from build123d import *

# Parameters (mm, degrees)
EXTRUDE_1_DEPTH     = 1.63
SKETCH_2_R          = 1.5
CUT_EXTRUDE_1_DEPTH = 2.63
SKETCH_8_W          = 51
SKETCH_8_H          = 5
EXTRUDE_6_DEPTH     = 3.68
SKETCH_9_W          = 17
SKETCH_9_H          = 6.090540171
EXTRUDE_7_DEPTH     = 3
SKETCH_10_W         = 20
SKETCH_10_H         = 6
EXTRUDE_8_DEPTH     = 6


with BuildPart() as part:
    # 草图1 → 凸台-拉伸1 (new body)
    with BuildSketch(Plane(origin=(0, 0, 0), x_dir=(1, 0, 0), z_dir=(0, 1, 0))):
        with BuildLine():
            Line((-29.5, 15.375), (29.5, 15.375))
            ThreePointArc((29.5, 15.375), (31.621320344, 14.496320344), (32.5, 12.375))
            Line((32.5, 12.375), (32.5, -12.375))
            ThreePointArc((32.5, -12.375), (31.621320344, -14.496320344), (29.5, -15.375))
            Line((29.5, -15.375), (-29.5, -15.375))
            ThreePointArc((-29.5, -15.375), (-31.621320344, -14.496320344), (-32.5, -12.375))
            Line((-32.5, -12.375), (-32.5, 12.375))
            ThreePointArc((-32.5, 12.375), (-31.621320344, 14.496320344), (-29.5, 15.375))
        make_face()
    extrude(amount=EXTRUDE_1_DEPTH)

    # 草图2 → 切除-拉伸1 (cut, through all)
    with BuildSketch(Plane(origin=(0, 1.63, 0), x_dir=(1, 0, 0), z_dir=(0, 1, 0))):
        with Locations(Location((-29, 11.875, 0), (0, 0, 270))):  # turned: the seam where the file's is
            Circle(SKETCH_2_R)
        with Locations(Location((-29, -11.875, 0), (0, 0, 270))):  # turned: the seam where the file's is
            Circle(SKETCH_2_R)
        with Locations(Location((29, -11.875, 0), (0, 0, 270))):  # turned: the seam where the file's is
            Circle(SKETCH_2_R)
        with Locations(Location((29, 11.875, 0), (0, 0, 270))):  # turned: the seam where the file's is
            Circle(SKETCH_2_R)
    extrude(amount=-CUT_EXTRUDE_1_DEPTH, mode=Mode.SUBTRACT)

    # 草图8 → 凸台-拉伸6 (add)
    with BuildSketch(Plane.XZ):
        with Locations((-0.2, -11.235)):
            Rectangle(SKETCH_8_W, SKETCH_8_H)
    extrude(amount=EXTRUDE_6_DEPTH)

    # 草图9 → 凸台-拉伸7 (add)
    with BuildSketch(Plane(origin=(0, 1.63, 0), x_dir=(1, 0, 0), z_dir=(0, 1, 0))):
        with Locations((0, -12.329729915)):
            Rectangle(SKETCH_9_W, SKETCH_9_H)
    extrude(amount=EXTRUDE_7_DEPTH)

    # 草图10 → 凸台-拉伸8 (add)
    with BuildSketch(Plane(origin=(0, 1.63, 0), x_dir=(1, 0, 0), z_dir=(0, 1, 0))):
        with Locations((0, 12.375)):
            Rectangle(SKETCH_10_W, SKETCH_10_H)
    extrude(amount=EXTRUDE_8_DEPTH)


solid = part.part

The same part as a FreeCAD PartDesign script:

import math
import FreeCAD as App
import Part
import Sketcher
Q = App.Units.Quantity

doc = App.newDocument("Part")
body = doc.addObject("PartDesign::Body", "Body")

# Sketch on XZ plane
sketch1 = body.newObject("Sketcher::SketchObject", "Sketch")
sketch1.AttachmentSupport = (doc.getObject("XZ_Plane"), [""])
sketch1.MapMode = "FlatFace"
sketch1.addGeometry([
    Part.LineSegment(App.Vector(29.5, -15.4, 0), App.Vector(-29.5, -15.4, 0)),  # 0
    Part.ArcOfCircle(Part.Circle(App.Vector(-29.5, -12.4, 0), App.Vector(0, 0, 1), 3), math.radians(180), math.radians(270)),  # 1
    Part.LineSegment(App.Vector(-32.5, -12.4, 0), App.Vector(-32.5, 12.4, 0)),  # 2
    Part.ArcOfCircle(Part.Circle(App.Vector(-29.5, 12.4, 0), App.Vector(0, 0, 1), 3), math.radians(90), math.radians(180)),  # 3
    Part.LineSegment(App.Vector(-29.5, 15.4, 0), App.Vector(29.5, 15.4, 0)),  # 4
    Part.ArcOfCircle(Part.Circle(App.Vector(29.5, 12.4, 0), App.Vector(0, 0, 1), 3), math.radians(0), math.radians(90)),  # 5
    Part.LineSegment(App.Vector(32.5, 12.4, 0), App.Vector(32.5, -12.4, 0)),  # 6
    Part.ArcOfCircle(Part.Circle(App.Vector(29.5, -12.4, 0), App.Vector(0, 0, 1), 3), math.radians(-90), math.radians(0)),  # 7
], False)
sketch1.addConstraint([
    Sketcher.Constraint("Tangent", 0, 2, 1, 2),
    Sketcher.Constraint("Tangent", 1, 1, 2, 1),
    Sketcher.Constraint("Tangent", 2, 2, 3, 2),
    Sketcher.Constraint("Tangent", 3, 1, 4, 1),
    Sketcher.Constraint("Tangent", 4, 2, 5, 2),
    Sketcher.Constraint("Tangent", 5, 1, 6, 1),
    Sketcher.Constraint("Tangent", 6, 2, 7, 2),
    Sketcher.Constraint("Tangent", 7, 1, 0, 1),
    Sketcher.Constraint("Horizontal", 0),
    Sketcher.Constraint("Vertical", 2),
    Sketcher.Constraint("Horizontal", 4),
    Sketcher.Constraint("Vertical", 6),
    Sketcher.Constraint("Equal", 1, 3),
    Sketcher.Constraint("Equal", 3, 5),
    Sketcher.Constraint("Equal", 5, 7),
    Sketcher.Constraint("Symmetric", 1, 3, 5, 3, -1, 1),
    Sketcher.Constraint("Radius", 1, Q("3 mm")),
    Sketcher.Constraint("DistanceX", 0, 2, 0, 1, Q("59 mm")),
    Sketcher.Constraint("DistanceY", 2, 1, 2, 2, Q("24.75 mm")),
])
pad1 = body.newObject("PartDesign::Pad", "Pad")
pad1.Profile = sketch1
pad1.Length = 1.63
pad1.Reversed = True

# Sketch on XZ plane
sketch2 = body.newObject("Sketcher::SketchObject", "Sketch001")
sketch2.AttachmentSupport = (doc.getObject("XZ_Plane"), [""])
sketch2.MapMode = "FlatFace"
sketch2.AttachmentOffset = App.Placement(App.Vector(0, 0, -1.63), App.Rotation())
sketch2.addGeometry([
    Part.Circle(App.Vector(-29, -11.9, 0), App.Vector(0, 0, 1), 1.5),
    Part.Circle(App.Vector(-29, 11.9, 0), App.Vector(0, 0, 1), 1.5),
    Part.Circle(App.Vector(29, 11.9, 0), App.Vector(0, 0, 1), 1.5),
    Part.Circle(App.Vector(29, -11.9, 0), App.Vector(0, 0, 1), 1.5),
], False)
sketch2.addConstraint([
    Sketcher.Constraint("Equal", 0, 1),
    Sketcher.Constraint("Equal", 1, 2),
    Sketcher.Constraint("Equal", 2, 3),
    Sketcher.Constraint("Symmetric", 0, 3, 2, 3, -1, 1),
    Sketcher.Constraint("Symmetric", 1, 3, 3, 3, -1, 1),
    Sketcher.Constraint("Symmetric", 1, 3, 2, 3, -2),
    Sketcher.Constraint("Diameter", 0, Q("3 mm")),
    Sketcher.Constraint("DistanceX", 0, 3, -1, 1, Q("29 mm")),
    Sketcher.Constraint("DistanceY", 0, 3, 1, 3, Q("23.75 mm")),
])
pocket1 = body.newObject("PartDesign::Pocket", "Pocket")
pocket1.Profile = sketch2
pocket1.Type = "ThroughAll"
pocket1.Reversed = True

# Sketch on XZ plane
sketch3 = body.newObject("Sketcher::SketchObject", "Sketch002")
sketch3.AttachmentSupport = (doc.getObject("XZ_Plane"), [""])
sketch3.MapMode = "FlatFace"
sketch3.addGeometry([
    Part.LineSegment(App.Vector(-26, -9, 0), App.Vector(-26, -14, 0)),
    Part.LineSegment(App.Vector(-26, -14, 0), App.Vector(25, -14, 0)),
    Part.LineSegment(App.Vector(25, -14, 0), App.Vector(25, -9, 0)),
    Part.LineSegment(App.Vector(25, -9, 0), App.Vector(-26, -9, 0)),
], False)
sketch3.addConstraint([
    Sketcher.Constraint("Coincident", 0, 2, 1, 1),
    Sketcher.Constraint("Coincident", 1, 2, 2, 1),
    Sketcher.Constraint("Coincident", 2, 2, 3, 1),
    Sketcher.Constraint("Coincident", 3, 2, 0, 1),
    Sketcher.Constraint("Vertical", 0),
    Sketcher.Constraint("Horizontal", 1),
    Sketcher.Constraint("Vertical", 2),
    Sketcher.Constraint("Horizontal", 3),
    Sketcher.Constraint("DistanceX", 1, 1, 1, 2, Q("51 mm")),
    Sketcher.Constraint("DistanceY", 0, 2, 0, 1, Q("5 mm")),
    Sketcher.Constraint("DistanceX", 0, 2, -1, 1, Q("25.7 mm")),
    Sketcher.Constraint("DistanceY", 0, 2, -1, 1, Q("13.735 mm")),
])
pad2 = body.newObject("PartDesign::Pad", "Pad001")
pad2.Profile = sketch3
pad2.Length = 3.68

# Sketch on XZ plane
sketch4 = body.newObject("Sketcher::SketchObject", "Sketch003")
sketch4.AttachmentSupport = (doc.getObject("XZ_Plane"), [""])
sketch4.MapMode = "FlatFace"
sketch4.AttachmentOffset = App.Placement(App.Vector(0, 0, -1.63), App.Rotation())
sketch4.addGeometry([
    Part.LineSegment(App.Vector(-8, 9, 0), App.Vector(-8, 15, 0)),
    Part.LineSegment(App.Vector(-8, 15, 0), App.Vector(8, 15, 0)),
    Part.LineSegment(App.Vector(8, 15, 0), App.Vector(8, 9, 0)),
    Part.LineSegment(App.Vector(8, 9, 0), App.Vector(-8, 9, 0)),
], False)
sketch4.addConstraint([
    Sketcher.Constraint("Coincident", 0, 2, 1, 1),
    Sketcher.Constraint("Coincident", 1, 2, 2, 1),
    Sketcher.Constraint("Coincident", 2, 2, 3, 1),
    Sketcher.Constraint("Coincident", 3, 2, 0, 1),
    Sketcher.Constraint("Vertical", 0),
    Sketcher.Constraint("Horizontal", 1),
    Sketcher.Constraint("Vertical", 2),
    Sketcher.Constraint("Horizontal", 3),
    Sketcher.Constraint("DistanceX", 1, 1, 1, 2, Q("17 mm")),
    Sketcher.Constraint("DistanceX", 0, 2, -1, 1, Q("8.5 mm")),
    Sketcher.Constraint("DistanceY", -1, 1, 0, 2, Q("15.375 mm")),
    Sketcher.Constraint("DistanceY", 0, 1, 0, 2, Q("6.09054 mm")),
])
pad3 = body.newObject("PartDesign::Pad", "Pad002")
pad3.Profile = sketch4
pad3.Length = 3
pad3.Reversed = True

# Sketch on XZ plane
sketch5 = body.newObject("Sketcher::SketchObject", "Sketch004")
sketch5.AttachmentSupport = (doc.getObject("XZ_Plane"), [""])
sketch5.MapMode = "FlatFace"
sketch5.AttachmentOffset = App.Placement(App.Vector(0, 0, -1.63), App.Rotation())
sketch5.addGeometry([
    Part.LineSegment(App.Vector(-10, -15, 0), App.Vector(-10, -9, 0)),
    Part.LineSegment(App.Vector(-10, -9, 0), App.Vector(10, -9, 0)),
    Part.LineSegment(App.Vector(10, -9, 0), App.Vector(10, -15, 0)),
    Part.LineSegment(App.Vector(10, -15, 0), App.Vector(-10, -15, 0)),
], False)
sketch5.addConstraint([
    Sketcher.Constraint("Coincident", 0, 2, 1, 1),
    Sketcher.Constraint("Coincident", 1, 2, 2, 1),
    Sketcher.Constraint("Coincident", 2, 2, 3, 1),
    Sketcher.Constraint("Coincident", 3, 2, 0, 1),
    Sketcher.Constraint("Vertical", 0),
    Sketcher.Constraint("Horizontal", 1),
    Sketcher.Constraint("Vertical", 2),
    Sketcher.Constraint("Horizontal", 3),
    Sketcher.Constraint("DistanceX", 1, 1, 1, 2, Q("20 mm")),
    Sketcher.Constraint("DistanceY", 0, 1, 0, 2, Q("6 mm")),
    Sketcher.Constraint("DistanceX", 0, 2, -1, 1, Q("10 mm")),
    Sketcher.Constraint("DistanceY", 0, 2, -1, 1, Q("9.375 mm")),
])
pad4 = body.newObject("PartDesign::Pad", "Pad003")
pad4.Profile = sketch5
pad4.Length = 6
pad4.Reversed = True

doc.recompute()
